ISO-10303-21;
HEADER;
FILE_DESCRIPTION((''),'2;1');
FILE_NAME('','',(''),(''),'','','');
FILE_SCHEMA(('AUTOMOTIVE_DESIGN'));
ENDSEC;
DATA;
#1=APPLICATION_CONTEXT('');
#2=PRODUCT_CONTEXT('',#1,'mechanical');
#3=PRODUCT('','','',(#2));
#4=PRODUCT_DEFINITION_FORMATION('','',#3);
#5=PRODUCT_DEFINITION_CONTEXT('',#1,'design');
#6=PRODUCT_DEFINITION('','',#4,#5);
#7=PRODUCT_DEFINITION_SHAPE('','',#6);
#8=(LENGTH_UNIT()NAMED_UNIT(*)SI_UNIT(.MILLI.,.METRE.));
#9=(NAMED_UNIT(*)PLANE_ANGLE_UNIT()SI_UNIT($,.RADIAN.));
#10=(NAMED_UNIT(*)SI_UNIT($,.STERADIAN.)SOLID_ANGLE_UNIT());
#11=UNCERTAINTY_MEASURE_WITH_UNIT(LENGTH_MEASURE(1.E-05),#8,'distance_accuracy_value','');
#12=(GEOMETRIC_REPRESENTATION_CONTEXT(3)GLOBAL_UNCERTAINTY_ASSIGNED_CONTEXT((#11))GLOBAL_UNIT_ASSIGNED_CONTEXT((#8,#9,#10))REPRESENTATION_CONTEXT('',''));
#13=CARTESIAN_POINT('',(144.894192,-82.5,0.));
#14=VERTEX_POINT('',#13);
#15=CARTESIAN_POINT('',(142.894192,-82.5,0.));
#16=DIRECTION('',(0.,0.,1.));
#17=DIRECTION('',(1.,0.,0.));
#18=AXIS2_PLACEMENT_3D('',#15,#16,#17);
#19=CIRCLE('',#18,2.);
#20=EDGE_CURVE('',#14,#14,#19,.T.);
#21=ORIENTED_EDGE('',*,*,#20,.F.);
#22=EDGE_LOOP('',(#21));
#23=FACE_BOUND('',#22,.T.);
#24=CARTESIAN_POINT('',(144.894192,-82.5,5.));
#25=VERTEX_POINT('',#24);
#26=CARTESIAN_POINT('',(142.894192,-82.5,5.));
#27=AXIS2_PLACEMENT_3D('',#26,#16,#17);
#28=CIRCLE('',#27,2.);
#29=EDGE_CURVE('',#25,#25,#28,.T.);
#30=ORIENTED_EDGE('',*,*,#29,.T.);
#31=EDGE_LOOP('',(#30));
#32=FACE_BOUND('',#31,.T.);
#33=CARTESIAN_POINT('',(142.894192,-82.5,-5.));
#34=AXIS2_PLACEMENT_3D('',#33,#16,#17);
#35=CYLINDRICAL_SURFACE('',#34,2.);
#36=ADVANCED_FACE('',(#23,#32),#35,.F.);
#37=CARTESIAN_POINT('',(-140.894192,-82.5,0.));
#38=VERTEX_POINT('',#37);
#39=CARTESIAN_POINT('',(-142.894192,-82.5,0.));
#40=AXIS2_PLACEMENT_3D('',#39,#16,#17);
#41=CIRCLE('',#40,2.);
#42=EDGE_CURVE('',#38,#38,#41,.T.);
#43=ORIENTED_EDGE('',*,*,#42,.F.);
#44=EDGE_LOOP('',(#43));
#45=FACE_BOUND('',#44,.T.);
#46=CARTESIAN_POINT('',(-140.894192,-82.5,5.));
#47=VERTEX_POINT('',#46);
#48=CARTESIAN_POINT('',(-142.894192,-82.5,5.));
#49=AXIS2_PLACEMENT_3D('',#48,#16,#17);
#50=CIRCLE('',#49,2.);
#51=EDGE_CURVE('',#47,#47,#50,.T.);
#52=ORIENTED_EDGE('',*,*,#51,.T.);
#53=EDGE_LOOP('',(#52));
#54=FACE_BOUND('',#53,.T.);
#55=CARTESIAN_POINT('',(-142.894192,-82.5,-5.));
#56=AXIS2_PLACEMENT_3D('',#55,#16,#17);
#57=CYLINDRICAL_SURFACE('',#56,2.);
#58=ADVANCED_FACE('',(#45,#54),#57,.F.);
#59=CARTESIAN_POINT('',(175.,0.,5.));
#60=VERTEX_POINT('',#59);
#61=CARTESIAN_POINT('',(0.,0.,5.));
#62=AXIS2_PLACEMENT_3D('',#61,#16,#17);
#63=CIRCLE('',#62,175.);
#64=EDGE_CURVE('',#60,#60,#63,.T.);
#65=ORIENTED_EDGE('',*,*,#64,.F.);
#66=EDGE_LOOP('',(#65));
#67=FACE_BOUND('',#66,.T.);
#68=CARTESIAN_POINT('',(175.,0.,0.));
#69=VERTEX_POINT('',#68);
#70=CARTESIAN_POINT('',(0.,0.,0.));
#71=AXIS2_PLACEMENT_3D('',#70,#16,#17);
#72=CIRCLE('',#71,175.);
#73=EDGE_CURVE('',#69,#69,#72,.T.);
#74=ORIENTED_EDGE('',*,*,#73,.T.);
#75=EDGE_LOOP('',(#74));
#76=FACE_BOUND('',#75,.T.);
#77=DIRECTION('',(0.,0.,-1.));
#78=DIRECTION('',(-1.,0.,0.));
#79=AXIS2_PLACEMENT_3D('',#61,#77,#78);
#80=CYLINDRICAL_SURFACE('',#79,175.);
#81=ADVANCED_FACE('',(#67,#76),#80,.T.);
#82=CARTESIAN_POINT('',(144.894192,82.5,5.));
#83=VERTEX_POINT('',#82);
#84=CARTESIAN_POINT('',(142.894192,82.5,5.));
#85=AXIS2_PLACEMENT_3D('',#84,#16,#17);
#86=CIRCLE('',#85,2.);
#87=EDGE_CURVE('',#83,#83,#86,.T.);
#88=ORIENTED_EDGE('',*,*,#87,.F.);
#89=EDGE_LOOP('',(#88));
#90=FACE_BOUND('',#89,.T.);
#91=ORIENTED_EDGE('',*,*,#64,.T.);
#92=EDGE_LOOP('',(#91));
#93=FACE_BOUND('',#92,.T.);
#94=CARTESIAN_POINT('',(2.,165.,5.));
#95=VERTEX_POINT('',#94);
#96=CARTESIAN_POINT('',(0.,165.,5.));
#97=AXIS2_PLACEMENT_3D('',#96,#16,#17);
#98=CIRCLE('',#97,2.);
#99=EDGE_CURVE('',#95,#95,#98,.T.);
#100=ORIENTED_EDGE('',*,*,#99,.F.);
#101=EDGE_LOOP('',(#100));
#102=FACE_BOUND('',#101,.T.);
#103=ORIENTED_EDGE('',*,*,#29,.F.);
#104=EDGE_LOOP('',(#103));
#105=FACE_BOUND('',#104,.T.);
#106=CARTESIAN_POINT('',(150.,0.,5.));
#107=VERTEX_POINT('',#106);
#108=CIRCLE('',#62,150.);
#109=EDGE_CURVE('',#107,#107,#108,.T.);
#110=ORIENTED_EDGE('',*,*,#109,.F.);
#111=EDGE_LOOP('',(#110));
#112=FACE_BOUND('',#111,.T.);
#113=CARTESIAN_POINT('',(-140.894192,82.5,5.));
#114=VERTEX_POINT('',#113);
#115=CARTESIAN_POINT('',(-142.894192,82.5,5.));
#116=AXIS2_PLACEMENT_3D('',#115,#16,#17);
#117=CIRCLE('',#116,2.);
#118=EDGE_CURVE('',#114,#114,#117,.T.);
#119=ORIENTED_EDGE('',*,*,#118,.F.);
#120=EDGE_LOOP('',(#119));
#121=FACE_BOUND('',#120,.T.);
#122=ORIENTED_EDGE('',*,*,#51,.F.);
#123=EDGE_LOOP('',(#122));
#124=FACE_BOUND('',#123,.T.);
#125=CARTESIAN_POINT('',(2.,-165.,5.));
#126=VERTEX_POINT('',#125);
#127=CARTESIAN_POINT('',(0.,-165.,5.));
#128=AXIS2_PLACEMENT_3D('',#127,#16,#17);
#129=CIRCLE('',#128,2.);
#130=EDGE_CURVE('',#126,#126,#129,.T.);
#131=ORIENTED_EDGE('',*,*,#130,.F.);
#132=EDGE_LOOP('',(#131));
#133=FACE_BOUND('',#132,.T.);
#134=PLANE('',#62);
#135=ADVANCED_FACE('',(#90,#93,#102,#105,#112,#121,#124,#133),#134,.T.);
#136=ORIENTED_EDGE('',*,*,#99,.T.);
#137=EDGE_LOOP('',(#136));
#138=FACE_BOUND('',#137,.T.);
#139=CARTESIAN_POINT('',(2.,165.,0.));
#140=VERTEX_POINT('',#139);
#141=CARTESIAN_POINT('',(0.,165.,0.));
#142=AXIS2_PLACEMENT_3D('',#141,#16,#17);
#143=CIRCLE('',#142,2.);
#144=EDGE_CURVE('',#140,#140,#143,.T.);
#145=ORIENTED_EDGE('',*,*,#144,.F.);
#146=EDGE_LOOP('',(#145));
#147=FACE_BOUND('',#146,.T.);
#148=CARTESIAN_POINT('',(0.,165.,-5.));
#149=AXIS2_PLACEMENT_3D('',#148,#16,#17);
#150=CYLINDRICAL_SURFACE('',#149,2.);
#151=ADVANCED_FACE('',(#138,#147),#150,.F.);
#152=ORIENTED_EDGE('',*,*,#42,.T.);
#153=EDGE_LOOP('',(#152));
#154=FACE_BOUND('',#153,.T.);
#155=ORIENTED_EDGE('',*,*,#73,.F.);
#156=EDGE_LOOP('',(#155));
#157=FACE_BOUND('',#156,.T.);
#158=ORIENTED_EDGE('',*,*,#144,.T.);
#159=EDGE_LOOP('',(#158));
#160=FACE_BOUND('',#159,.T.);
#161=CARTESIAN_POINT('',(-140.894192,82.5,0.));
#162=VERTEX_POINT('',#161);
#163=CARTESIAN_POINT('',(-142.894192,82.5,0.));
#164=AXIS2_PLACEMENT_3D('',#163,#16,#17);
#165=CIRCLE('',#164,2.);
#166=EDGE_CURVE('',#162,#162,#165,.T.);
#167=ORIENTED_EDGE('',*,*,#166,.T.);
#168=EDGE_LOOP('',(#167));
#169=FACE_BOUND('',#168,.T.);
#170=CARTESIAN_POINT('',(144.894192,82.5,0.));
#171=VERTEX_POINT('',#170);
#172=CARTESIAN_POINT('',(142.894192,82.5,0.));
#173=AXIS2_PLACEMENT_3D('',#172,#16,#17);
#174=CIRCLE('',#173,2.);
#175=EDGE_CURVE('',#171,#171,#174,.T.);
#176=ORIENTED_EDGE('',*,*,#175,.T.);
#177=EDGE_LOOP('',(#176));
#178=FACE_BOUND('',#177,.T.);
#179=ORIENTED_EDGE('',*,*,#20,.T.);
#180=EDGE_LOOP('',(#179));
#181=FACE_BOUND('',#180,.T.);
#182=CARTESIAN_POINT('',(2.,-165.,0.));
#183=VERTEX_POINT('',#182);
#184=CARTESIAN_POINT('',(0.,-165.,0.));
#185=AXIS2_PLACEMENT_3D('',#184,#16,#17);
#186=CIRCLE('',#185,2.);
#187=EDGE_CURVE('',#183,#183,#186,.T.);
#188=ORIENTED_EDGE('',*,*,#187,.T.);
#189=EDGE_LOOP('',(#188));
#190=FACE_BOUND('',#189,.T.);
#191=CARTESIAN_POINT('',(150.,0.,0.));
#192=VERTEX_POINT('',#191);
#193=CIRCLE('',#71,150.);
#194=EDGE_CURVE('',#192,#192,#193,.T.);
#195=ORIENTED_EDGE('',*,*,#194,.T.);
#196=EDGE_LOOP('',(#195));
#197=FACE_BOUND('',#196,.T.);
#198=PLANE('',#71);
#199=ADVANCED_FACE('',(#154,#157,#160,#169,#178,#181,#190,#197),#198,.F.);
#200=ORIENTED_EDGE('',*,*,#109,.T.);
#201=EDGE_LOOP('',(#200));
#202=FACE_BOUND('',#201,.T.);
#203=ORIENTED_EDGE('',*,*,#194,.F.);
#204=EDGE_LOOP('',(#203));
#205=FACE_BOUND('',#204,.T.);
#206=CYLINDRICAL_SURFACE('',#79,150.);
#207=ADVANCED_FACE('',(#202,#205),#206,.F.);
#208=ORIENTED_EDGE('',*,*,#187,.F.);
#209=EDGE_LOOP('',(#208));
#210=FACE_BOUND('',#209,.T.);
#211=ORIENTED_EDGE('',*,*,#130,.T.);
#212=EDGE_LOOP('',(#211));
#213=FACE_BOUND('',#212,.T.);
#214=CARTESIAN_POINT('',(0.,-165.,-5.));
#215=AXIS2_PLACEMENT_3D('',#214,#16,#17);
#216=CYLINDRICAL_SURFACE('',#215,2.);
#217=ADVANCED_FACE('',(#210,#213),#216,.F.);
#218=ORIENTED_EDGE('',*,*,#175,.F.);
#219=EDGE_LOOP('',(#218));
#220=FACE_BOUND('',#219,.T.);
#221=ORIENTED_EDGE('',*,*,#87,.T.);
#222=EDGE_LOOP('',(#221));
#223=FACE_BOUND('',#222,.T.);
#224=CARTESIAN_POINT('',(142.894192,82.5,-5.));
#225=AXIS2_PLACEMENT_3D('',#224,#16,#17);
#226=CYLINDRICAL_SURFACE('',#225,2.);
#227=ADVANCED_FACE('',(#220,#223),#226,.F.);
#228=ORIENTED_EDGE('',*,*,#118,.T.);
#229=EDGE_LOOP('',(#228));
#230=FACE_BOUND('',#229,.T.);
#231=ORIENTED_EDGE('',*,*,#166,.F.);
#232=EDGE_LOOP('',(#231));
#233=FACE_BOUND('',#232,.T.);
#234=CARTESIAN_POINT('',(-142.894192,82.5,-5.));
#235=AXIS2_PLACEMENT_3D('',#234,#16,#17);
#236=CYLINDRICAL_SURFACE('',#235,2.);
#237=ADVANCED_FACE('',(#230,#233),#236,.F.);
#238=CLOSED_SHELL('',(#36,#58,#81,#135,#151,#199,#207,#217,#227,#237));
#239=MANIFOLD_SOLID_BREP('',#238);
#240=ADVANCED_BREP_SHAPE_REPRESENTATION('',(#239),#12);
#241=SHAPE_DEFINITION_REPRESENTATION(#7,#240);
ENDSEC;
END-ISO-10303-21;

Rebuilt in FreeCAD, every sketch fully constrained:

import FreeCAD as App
import Part
import Sketcher

doc = App.newDocument("Part")
body = doc.addObject("PartDesign::Body", "Body")

sketch1 = body.newObject("Sketcher::SketchObject", "Sketch")
sketch1.AttachmentSupport = (doc.getObject("XY_Plane"), [""])
sketch1.MapMode = "FlatFace"
sketch1.addGeometry(Part.Circle(App.Vector(0, 0, 0), App.Vector(0, 0, 1), 175), False)
sketch1.addGeometry(Part.Circle(App.Vector(0, 0, 0), App.Vector(0, 0, 1), 150), False)
sketch1.addConstraint(Sketcher.Constraint("Coincident", 0, 3, -1, 1))
sketch1.addConstraint(Sketcher.Constraint("Coincident", 1, 3, -1, 1))
sketch1.addConstraint(Sketcher.Constraint("Diameter", 0, 350.0))
sketch1.addConstraint(Sketcher.Constraint("Diameter", 1, 300.0))
pad1 = body.newObject("PartDesign::Pad", "Pad")
pad1.Profile = sketch1
pad1.Length = 5

sketch2 = body.newObject("Sketcher::SketchObject", "Sketch001")
sketch2.AttachmentSupport = (doc.getObject("XY_Plane"), [""])
sketch2.MapMode = "FlatFace"
sketch2.AttachmentOffset = App.Placement(App.Vector(0, 0, 5), App.Rotation())
sketch2.addGeometry(Part.Circle(App.Vector(0, 165, 0), App.Vector(0, 0, 1), 2), False)
sketch2.addGeometry(Part.Circle(App.Vector(142.9, 82.5, 0), App.Vector(0, 0, 1), 2), False)
sketch2.addGeometry(Part.Circle(App.Vector(142.9, -82.5, 0), App.Vector(0, 0, 1), 2), False)
sketch2.addGeometry(Part.Circle(App.Vector(0, -165, 0), App.Vector(0, 0, 1), 2), False)
sketch2.addGeometry(Part.Circle(App.Vector(-142.9, -82.5, 0), App.Vector(0, 0, 1), 2), False)
sketch2.addGeometry(Part.Circle(App.Vector(-142.9, 82.5, 0), App.Vector(0, 0, 1), 2), False)
sketch2.addConstraint(Sketcher.Constraint("Equal", 0, 1))
sketch2.addConstraint(Sketcher.Constraint("Equal", 1, 2))
sketch2.addConstraint(Sketcher.Constraint("Equal", 2, 3))
sketch2.addConstraint(Sketcher.Constraint("Equal", 3, 4))
sketch2.addConstraint(Sketcher.Constraint("Equal", 4, 5))
sketch2.addConstraint(Sketcher.Constraint("Symmetric", 0, 3, 3, 3, -1, 1))
sketch2.addConstraint(Sketcher.Constraint("Symmetric", 1, 3, 4, 3, -1, 1))
sketch2.addConstraint(Sketcher.Constraint("Symmetric", 2, 3, 5, 3, -1, 1))
sketch2.addConstraint(Sketcher.Constraint("Symmetric", 2, 3, 4, 3, -2))
sketch2.addConstraint(Sketcher.Constraint("PointOnObject", 0, 3, -2))
sketch2.addConstraint(Sketcher.Constraint("Diameter", 0, 4.0))
sketch2.addConstraint(Sketcher.Constraint("DistanceY", -1, 1, 0, 3, 165.0))
sketch2.addConstraint(Sketcher.Constraint("DistanceY", 2, 3, 1, 3, 165.0))
sketch2.addConstraint(Sketcher.Constraint("DistanceX", -1, 1, 1, 3, 142.894192))
pocket1 = body.newObject("PartDesign::Pocket", "Pocket")
pocket1.Profile = sketch2
pocket1.Length = 10

doc.recompute()
